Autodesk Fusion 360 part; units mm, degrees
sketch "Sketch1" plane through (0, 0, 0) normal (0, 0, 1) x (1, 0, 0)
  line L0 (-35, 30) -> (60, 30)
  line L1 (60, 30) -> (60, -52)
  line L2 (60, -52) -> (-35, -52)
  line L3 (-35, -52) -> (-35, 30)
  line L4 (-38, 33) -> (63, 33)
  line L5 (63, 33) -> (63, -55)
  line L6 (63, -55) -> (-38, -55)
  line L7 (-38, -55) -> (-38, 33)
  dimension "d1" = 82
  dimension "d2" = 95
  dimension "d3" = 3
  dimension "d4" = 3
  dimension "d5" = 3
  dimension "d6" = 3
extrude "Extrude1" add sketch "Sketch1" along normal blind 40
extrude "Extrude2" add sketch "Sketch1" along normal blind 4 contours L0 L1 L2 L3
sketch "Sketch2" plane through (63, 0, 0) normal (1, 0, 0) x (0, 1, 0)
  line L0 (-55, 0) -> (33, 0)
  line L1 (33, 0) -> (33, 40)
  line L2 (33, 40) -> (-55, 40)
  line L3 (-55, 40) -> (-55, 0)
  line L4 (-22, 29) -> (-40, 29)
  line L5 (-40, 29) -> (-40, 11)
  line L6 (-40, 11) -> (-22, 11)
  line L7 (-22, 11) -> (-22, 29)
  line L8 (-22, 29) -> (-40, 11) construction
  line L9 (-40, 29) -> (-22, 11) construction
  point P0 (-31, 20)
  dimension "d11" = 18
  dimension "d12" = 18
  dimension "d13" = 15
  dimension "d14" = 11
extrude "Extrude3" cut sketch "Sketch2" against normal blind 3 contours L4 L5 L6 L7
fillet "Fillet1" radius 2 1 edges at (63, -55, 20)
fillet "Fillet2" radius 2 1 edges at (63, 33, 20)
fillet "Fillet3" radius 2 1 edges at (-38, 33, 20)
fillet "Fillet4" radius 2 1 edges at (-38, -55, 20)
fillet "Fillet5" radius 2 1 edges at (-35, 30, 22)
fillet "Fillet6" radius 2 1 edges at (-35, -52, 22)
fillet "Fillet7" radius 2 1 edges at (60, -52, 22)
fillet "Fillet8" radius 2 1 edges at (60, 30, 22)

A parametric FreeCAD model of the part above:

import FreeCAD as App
import Part
import Sketcher

V = App.Vector


def edges_at(feature, points):
    """Names of the edges that pass closest to the given points."""
    edges = feature.Shape.Edges
    near = lambda p: min(range(len(edges)), key=lambda i: edges[i].distToShape(Part.Vertex(*p))[0])
    return sorted({f"Edge{near(p) + 1}" for p in points})


def add_polygon(sketch, points):
    """Adds a closed chain of lines whose ends are joined by coincident constraints."""
    first, n = sketch.GeometryCount, len(points)
    for a, b in zip(points, points[1:] + points[:1]):
        sketch.addGeometry(Part.LineSegment(App.Vector(*a, 0), App.Vector(*b, 0)), False)
    for i in range(n):
        sketch.addConstraint(Sketcher.Constraint("Coincident", first + i, 2, first + (i + 1) % n, 1))

doc = App.newDocument("Part")
body = doc.addObject("PartDesign::Body", "Body")

# Sketch on XY plane
sketch1 = doc.addObject("Sketcher::SketchObject", "Sketch")
body.addObject(sketch1)
sketch1.AttachmentSupport = (doc.XY_Plane, [""])
sketch1.MapMode = "FlatFace"
add_polygon(sketch1, [(63, 33), (-38, 33), (-38, -55), (63, -55)])  # lines 0-3
add_polygon(sketch1, [(-35, -52), (-35, 30), (60, 30), (60, -52)])  # lines 4-7
sketch1.addConstraint(Sketcher.Constraint("Horizontal", 0))
sketch1.addConstraint(Sketcher.Constraint("Vertical", 1))
sketch1.addConstraint(Sketcher.Constraint("Horizontal", 2))
sketch1.addConstraint(Sketcher.Constraint("Vertical", 3))
sketch1.addConstraint(Sketcher.Constraint("Vertical", 4))
sketch1.addConstraint(Sketcher.Constraint("Horizontal", 5))
sketch1.addConstraint(Sketcher.Constraint("Vertical", 6))
sketch1.addConstraint(Sketcher.Constraint("Horizontal", 7))
sketch1.addConstraint(Sketcher.Constraint("DistanceX", 5, 1, 5, 2, 95.0))
sketch1.addConstraint(Sketcher.Constraint("DistanceY", 4, 1, 4, 2, 82.0))
sketch1.addConstraint(Sketcher.Constraint("DistanceX", 0, 2, 4, 2, 3.0))
sketch1.addConstraint(Sketcher.Constraint("DistanceY", 4, 2, 0, 2, 3.0))
sketch1.addConstraint(Sketcher.Constraint("DistanceX", 5, 2, 3, 2, 3.0))
sketch1.addConstraint(Sketcher.Constraint("DistanceY", 2, 2, 6, 2, 3.0))
sketch1.addConstraint(Sketcher.Constraint("DistanceX", 0, 2, -1, 1, 38.0))
sketch1.addConstraint(Sketcher.Constraint("DistanceY", -1, 1, 0, 2, 33.0))
pad1 = doc.addObject("PartDesign::Pad", "Pad")
body.addObject(pad1)
pad1.Profile = sketch1
pad1.Length = 40

# Sketch on XY plane
sketch2 = doc.addObject("Sketcher::SketchObject", "Sketch001")
body.addObject(sketch2)
sketch2.AttachmentSupport = (doc.XY_Plane, [""])
sketch2.MapMode = "FlatFace"
add_polygon(sketch2, [(60, 30), (-35, 30), (-35, -52), (60, -52)])  # lines 0-3
sketch2.addConstraint(Sketcher.Constraint("Horizontal", 0))
sketch2.addConstraint(Sketcher.Constraint("Vertical", 1))
sketch2.addConstraint(Sketcher.Constraint("Horizontal", 2))
sketch2.addConstraint(Sketcher.Constraint("Vertical", 3))
sketch2.addConstraint(Sketcher.Constraint("DistanceX", 0, 2, 0, 1, 95.0))
sketch2.addConstraint(Sketcher.Constraint("DistanceY", 1, 2, 1, 1, 82.0))
sketch2.addConstraint(Sketcher.Constraint("DistanceX", 0, 2, -1, 1, 35.0))
sketch2.addConstraint(Sketcher.Constraint("DistanceY", -1, 1, 0, 2, 30.0))
pad2 = doc.addObject("PartDesign::Pad", "Pad001")
body.addObject(pad2)
pad2.Profile = sketch2
pad2.Length = 4

# Sketch on YZ plane
sketch3 = doc.addObject("Sketcher::SketchObject", "Sketch002")
body.addObject(sketch3)
sketch3.AttachmentSupport = (doc.YZ_Plane, [""])
sketch3.MapMode = "FlatFace"
sketch3.AttachmentOffset = App.Placement(V(0, 0, 63), App.Rotation())
add_polygon(sketch3, [(-22, 11), (-22, 29), (-40, 29), (-40, 11)])  # lines 0-3
sketch3.addConstraint(Sketcher.Constraint("Vertical", 0))
sketch3.addConstraint(Sketcher.Constraint("Horizontal", 1))
sketch3.addConstraint(Sketcher.Constraint("Vertical", 2))
sketch3.addConstraint(Sketcher.Constraint("Horizontal", 3))
sketch3.addConstraint(Sketcher.Constraint("Equal", 3, 0))
sketch3.addConstraint(Sketcher.Constraint("DistanceX", 1, 2, 1, 1, 18.0))
sketch3.addConstraint(Sketcher.Constraint("DistanceY", -1, 1, 2, 2, 11.0))
sketch3.addConstraint(Sketcher.Constraint("DistanceX", 0, 2, -1, 1, 22.0))
pocket1 = doc.addObject("PartDesign::Pocket", "Pocket")
body.addObject(pocket1)
pocket1.Profile = sketch3
pocket1.Length = 3
doc.recompute()

fillet = doc.addObject("PartDesign::Fillet", "Fillet")
body.addObject(fillet)
fillet.Base = (pocket1, edges_at(pocket1, [(63, -55, 20)]))
fillet.Radius = 2
doc.recompute()

fillet2 = doc.addObject("PartDesign::Fillet", "Fillet001")
body.addObject(fillet2)
fillet2.Base = (fillet, edges_at(fillet, [(63, 33, 20)]))
fillet2.Radius = 2
doc.recompute()

fillet3 = doc.addObject("PartDesign::Fillet", "Fillet002")
body.addObject(fillet3)
fillet3.Base = (fillet2, edges_at(fillet2, [(-38, 33, 20)]))
fillet3.Radius = 2
doc.recompute()

fillet4 = doc.addObject("PartDesign::Fillet", "Fillet003")
body.addObject(fillet4)
fillet4.Base = (fillet3, edges_at(fillet3, [(-38, -55, 20)]))
fillet4.Radius = 2
doc.recompute()

fillet5 = doc.addObject("PartDesign::Fillet", "Fillet004")
body.addObject(fillet5)
fillet5.Base = (fillet4, edges_at(fillet4, [(-35, 30, 22)]))
fillet5.Radius = 2
doc.recompute()

fillet6 = doc.addObject("PartDesign::Fillet", "Fillet005")
body.addObject(fillet6)
fillet6.Base = (fillet5, edges_at(fillet5, [(-35, -52, 22)]))
fillet6.Radius = 2
doc.recompute()

fillet7 = doc.addObject("PartDesign::Fillet", "Fillet006")
body.addObject(fillet7)
fillet7.Base = (fillet6, edges_at(fillet6, [(60, -52, 22)]))
fillet7.Radius = 2
doc.recompute()

fillet8 = doc.addObject("PartDesign::Fillet", "Fillet007")
body.addObject(fillet8)
fillet8.Base = (fillet7, edges_at(fillet7, [(60, 30, 22)]))
fillet8.Radius = 2

doc.recompute()
